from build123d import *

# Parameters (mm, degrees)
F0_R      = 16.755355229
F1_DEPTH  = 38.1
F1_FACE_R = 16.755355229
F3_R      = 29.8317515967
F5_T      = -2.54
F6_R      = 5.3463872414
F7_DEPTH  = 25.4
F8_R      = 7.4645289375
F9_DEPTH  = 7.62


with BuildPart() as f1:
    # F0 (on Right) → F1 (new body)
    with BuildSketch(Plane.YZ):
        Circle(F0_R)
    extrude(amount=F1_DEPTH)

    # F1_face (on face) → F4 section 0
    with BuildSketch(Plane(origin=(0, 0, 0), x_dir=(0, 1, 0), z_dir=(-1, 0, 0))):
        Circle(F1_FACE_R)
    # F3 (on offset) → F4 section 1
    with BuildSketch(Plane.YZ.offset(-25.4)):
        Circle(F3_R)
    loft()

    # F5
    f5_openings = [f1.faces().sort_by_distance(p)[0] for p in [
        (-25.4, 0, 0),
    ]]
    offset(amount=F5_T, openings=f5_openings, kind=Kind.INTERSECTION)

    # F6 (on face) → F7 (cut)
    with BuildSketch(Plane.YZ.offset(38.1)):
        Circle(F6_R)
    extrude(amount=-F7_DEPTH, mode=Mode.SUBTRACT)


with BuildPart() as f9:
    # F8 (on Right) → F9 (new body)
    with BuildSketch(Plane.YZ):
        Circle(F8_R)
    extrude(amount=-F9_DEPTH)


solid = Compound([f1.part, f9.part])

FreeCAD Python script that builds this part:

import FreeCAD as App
import Part
import Sketcher

V = App.Vector
Q = App.Units.Quantity


def faces_at(feature, points):
    """Names of the faces that lie closest to the given points."""
    faces = feature.Shape.Faces
    near = lambda p: min(range(len(faces)), key=lambda i: faces[i].distToShape(Part.Vertex(*p))[0])
    return sorted({f"Face{near(p) + 1}" for p in points})

doc = App.newDocument("Part")
params = doc.addObject("Spreadsheet::Sheet", "Params")
for row, (alias, value) in enumerate([
    ("pad1_length", "1.5 in"),
    ("thickness_wall", "0.1 in"),
    ("pocket1_length", "1 in"),
    ("pad2_length", "0.3 in"),
], start=1):
    params.set(f"A{row}", alias)
    params.set(f"B{row}", "=" + value)
    params.setAlias(f"B{row}", alias)

body = doc.addObject("PartDesign::Body", "Body")

# Sketch on YZ plane
sketch1 = body.newObject("Sketcher::SketchObject", "Sketch")
sketch1.AttachmentSupport = (doc.getObject("YZ_Plane"), [""])
sketch1.MapMode = "FlatFace"
sketch1.addGeometry(Part.Circle(V(0, 0, 0), V(0, 0, 1), 16.755355), False)
sketch1.addConstraint([
    Sketcher.Constraint("Coincident", 0, 3, -1, 1),
    Sketcher.Constraint("Diameter", 0, Q("33.51071 mm")),
])
pad1 = body.newObject("PartDesign::Pad", "Pad")
pad1.Profile = sketch1
pad1.setExpression("Length", "Params.pad1_length")

# Sketch on YZ plane
sketch2 = body.newObject("Sketcher::SketchObject", "Sketch001")
sketch2.AttachmentSupport = (doc.getObject("YZ_Plane"), [""])
sketch2.MapMode = "FlatFace"
sketch2.addGeometry(Part.Circle(V(0, 0, 0), V(0, 0, 1), 16.755355), False)
sketch2.addConstraint([
    Sketcher.Constraint("Coincident", 0, 3, -1, 1),
    Sketcher.Constraint("Diameter", 0, Q("33.51071 mm")),
])

# Sketch on YZ plane
sketch3 = body.newObject("Sketcher::SketchObject", "Sketch002")
sketch3.AttachmentSupport = (doc.getObject("YZ_Plane"), [""])
sketch3.MapMode = "FlatFace"
sketch3.AttachmentOffset = App.Placement(V(0, 0, -1 * 25.4), App.Rotation())
sketch3.addGeometry(Part.Circle(V(0, 0, 0), V(0, 0, 1), 29.831752), False)
sketch3.addConstraint([
    Sketcher.Constraint("Coincident", 0, 3, -1, 1),
    Sketcher.Constraint("Diameter", 0, Q("59.663503 mm")),
])

additiveloft = body.newObject("PartDesign::AdditiveLoft", "AdditiveLoft")
additiveloft.Profile = sketch2
additiveloft.Sections = [sketch3]
doc.recompute()

thickness = body.newObject("PartDesign::Thickness", "Thickness")
thickness.Base = (additiveloft, faces_at(additiveloft, [(-25.4, 0, 0)]))
thickness.setExpression("Value", "Params.thickness_wall")
thickness.Reversed = True
thickness.Join = "Intersection"

# Sketch on YZ plane
sketch4 = body.newObject("Sketcher::SketchObject", "Sketch003")
sketch4.AttachmentSupport = (doc.getObject("YZ_Plane"), [""])
sketch4.MapMode = "FlatFace"
sketch4.AttachmentOffset = App.Placement(V(0, 0, 1.5 * 25.4), App.Rotation())
sketch4.addGeometry(Part.Circle(V(0, 0, 0), V(0, 0, 1), 5.346387), False)
sketch4.addConstraint([
    Sketcher.Constraint("Coincident", 0, 3, -1, 1),
    Sketcher.Constraint("Diameter", 0, Q("10.692774 mm")),
])
pocket1 = body.newObject("PartDesign::Pocket", "Pocket")
pocket1.Profile = sketch4
pocket1.setExpression("Length", "Params.pocket1_length")
body2 = doc.addObject("PartDesign::Body", "Body001")

# Sketch on YZ plane
sketch5 = body2.newObject("Sketcher::SketchObject", "Sketch004")
sketch5.AttachmentSupport = (doc.getObject("YZ_Plane001"), [""])
sketch5.MapMode = "FlatFace"
sketch5.addGeometry(Part.Circle(V(0, 0, 0), V(0, 0, 1), 7.464529), False)
sketch5.addConstraint([
    Sketcher.Constraint("Coincident", 0, 3, -1, 1),
    Sketcher.Constraint("Diameter", 0, Q("14.929058 mm")),
])
pad2 = body2.newObject("PartDesign::Pad", "Pad001")
pad2.Profile = sketch5
pad2.setExpression("Length", "Params.pad2_length")
pad2.Reversed = True

doc.recompute()
